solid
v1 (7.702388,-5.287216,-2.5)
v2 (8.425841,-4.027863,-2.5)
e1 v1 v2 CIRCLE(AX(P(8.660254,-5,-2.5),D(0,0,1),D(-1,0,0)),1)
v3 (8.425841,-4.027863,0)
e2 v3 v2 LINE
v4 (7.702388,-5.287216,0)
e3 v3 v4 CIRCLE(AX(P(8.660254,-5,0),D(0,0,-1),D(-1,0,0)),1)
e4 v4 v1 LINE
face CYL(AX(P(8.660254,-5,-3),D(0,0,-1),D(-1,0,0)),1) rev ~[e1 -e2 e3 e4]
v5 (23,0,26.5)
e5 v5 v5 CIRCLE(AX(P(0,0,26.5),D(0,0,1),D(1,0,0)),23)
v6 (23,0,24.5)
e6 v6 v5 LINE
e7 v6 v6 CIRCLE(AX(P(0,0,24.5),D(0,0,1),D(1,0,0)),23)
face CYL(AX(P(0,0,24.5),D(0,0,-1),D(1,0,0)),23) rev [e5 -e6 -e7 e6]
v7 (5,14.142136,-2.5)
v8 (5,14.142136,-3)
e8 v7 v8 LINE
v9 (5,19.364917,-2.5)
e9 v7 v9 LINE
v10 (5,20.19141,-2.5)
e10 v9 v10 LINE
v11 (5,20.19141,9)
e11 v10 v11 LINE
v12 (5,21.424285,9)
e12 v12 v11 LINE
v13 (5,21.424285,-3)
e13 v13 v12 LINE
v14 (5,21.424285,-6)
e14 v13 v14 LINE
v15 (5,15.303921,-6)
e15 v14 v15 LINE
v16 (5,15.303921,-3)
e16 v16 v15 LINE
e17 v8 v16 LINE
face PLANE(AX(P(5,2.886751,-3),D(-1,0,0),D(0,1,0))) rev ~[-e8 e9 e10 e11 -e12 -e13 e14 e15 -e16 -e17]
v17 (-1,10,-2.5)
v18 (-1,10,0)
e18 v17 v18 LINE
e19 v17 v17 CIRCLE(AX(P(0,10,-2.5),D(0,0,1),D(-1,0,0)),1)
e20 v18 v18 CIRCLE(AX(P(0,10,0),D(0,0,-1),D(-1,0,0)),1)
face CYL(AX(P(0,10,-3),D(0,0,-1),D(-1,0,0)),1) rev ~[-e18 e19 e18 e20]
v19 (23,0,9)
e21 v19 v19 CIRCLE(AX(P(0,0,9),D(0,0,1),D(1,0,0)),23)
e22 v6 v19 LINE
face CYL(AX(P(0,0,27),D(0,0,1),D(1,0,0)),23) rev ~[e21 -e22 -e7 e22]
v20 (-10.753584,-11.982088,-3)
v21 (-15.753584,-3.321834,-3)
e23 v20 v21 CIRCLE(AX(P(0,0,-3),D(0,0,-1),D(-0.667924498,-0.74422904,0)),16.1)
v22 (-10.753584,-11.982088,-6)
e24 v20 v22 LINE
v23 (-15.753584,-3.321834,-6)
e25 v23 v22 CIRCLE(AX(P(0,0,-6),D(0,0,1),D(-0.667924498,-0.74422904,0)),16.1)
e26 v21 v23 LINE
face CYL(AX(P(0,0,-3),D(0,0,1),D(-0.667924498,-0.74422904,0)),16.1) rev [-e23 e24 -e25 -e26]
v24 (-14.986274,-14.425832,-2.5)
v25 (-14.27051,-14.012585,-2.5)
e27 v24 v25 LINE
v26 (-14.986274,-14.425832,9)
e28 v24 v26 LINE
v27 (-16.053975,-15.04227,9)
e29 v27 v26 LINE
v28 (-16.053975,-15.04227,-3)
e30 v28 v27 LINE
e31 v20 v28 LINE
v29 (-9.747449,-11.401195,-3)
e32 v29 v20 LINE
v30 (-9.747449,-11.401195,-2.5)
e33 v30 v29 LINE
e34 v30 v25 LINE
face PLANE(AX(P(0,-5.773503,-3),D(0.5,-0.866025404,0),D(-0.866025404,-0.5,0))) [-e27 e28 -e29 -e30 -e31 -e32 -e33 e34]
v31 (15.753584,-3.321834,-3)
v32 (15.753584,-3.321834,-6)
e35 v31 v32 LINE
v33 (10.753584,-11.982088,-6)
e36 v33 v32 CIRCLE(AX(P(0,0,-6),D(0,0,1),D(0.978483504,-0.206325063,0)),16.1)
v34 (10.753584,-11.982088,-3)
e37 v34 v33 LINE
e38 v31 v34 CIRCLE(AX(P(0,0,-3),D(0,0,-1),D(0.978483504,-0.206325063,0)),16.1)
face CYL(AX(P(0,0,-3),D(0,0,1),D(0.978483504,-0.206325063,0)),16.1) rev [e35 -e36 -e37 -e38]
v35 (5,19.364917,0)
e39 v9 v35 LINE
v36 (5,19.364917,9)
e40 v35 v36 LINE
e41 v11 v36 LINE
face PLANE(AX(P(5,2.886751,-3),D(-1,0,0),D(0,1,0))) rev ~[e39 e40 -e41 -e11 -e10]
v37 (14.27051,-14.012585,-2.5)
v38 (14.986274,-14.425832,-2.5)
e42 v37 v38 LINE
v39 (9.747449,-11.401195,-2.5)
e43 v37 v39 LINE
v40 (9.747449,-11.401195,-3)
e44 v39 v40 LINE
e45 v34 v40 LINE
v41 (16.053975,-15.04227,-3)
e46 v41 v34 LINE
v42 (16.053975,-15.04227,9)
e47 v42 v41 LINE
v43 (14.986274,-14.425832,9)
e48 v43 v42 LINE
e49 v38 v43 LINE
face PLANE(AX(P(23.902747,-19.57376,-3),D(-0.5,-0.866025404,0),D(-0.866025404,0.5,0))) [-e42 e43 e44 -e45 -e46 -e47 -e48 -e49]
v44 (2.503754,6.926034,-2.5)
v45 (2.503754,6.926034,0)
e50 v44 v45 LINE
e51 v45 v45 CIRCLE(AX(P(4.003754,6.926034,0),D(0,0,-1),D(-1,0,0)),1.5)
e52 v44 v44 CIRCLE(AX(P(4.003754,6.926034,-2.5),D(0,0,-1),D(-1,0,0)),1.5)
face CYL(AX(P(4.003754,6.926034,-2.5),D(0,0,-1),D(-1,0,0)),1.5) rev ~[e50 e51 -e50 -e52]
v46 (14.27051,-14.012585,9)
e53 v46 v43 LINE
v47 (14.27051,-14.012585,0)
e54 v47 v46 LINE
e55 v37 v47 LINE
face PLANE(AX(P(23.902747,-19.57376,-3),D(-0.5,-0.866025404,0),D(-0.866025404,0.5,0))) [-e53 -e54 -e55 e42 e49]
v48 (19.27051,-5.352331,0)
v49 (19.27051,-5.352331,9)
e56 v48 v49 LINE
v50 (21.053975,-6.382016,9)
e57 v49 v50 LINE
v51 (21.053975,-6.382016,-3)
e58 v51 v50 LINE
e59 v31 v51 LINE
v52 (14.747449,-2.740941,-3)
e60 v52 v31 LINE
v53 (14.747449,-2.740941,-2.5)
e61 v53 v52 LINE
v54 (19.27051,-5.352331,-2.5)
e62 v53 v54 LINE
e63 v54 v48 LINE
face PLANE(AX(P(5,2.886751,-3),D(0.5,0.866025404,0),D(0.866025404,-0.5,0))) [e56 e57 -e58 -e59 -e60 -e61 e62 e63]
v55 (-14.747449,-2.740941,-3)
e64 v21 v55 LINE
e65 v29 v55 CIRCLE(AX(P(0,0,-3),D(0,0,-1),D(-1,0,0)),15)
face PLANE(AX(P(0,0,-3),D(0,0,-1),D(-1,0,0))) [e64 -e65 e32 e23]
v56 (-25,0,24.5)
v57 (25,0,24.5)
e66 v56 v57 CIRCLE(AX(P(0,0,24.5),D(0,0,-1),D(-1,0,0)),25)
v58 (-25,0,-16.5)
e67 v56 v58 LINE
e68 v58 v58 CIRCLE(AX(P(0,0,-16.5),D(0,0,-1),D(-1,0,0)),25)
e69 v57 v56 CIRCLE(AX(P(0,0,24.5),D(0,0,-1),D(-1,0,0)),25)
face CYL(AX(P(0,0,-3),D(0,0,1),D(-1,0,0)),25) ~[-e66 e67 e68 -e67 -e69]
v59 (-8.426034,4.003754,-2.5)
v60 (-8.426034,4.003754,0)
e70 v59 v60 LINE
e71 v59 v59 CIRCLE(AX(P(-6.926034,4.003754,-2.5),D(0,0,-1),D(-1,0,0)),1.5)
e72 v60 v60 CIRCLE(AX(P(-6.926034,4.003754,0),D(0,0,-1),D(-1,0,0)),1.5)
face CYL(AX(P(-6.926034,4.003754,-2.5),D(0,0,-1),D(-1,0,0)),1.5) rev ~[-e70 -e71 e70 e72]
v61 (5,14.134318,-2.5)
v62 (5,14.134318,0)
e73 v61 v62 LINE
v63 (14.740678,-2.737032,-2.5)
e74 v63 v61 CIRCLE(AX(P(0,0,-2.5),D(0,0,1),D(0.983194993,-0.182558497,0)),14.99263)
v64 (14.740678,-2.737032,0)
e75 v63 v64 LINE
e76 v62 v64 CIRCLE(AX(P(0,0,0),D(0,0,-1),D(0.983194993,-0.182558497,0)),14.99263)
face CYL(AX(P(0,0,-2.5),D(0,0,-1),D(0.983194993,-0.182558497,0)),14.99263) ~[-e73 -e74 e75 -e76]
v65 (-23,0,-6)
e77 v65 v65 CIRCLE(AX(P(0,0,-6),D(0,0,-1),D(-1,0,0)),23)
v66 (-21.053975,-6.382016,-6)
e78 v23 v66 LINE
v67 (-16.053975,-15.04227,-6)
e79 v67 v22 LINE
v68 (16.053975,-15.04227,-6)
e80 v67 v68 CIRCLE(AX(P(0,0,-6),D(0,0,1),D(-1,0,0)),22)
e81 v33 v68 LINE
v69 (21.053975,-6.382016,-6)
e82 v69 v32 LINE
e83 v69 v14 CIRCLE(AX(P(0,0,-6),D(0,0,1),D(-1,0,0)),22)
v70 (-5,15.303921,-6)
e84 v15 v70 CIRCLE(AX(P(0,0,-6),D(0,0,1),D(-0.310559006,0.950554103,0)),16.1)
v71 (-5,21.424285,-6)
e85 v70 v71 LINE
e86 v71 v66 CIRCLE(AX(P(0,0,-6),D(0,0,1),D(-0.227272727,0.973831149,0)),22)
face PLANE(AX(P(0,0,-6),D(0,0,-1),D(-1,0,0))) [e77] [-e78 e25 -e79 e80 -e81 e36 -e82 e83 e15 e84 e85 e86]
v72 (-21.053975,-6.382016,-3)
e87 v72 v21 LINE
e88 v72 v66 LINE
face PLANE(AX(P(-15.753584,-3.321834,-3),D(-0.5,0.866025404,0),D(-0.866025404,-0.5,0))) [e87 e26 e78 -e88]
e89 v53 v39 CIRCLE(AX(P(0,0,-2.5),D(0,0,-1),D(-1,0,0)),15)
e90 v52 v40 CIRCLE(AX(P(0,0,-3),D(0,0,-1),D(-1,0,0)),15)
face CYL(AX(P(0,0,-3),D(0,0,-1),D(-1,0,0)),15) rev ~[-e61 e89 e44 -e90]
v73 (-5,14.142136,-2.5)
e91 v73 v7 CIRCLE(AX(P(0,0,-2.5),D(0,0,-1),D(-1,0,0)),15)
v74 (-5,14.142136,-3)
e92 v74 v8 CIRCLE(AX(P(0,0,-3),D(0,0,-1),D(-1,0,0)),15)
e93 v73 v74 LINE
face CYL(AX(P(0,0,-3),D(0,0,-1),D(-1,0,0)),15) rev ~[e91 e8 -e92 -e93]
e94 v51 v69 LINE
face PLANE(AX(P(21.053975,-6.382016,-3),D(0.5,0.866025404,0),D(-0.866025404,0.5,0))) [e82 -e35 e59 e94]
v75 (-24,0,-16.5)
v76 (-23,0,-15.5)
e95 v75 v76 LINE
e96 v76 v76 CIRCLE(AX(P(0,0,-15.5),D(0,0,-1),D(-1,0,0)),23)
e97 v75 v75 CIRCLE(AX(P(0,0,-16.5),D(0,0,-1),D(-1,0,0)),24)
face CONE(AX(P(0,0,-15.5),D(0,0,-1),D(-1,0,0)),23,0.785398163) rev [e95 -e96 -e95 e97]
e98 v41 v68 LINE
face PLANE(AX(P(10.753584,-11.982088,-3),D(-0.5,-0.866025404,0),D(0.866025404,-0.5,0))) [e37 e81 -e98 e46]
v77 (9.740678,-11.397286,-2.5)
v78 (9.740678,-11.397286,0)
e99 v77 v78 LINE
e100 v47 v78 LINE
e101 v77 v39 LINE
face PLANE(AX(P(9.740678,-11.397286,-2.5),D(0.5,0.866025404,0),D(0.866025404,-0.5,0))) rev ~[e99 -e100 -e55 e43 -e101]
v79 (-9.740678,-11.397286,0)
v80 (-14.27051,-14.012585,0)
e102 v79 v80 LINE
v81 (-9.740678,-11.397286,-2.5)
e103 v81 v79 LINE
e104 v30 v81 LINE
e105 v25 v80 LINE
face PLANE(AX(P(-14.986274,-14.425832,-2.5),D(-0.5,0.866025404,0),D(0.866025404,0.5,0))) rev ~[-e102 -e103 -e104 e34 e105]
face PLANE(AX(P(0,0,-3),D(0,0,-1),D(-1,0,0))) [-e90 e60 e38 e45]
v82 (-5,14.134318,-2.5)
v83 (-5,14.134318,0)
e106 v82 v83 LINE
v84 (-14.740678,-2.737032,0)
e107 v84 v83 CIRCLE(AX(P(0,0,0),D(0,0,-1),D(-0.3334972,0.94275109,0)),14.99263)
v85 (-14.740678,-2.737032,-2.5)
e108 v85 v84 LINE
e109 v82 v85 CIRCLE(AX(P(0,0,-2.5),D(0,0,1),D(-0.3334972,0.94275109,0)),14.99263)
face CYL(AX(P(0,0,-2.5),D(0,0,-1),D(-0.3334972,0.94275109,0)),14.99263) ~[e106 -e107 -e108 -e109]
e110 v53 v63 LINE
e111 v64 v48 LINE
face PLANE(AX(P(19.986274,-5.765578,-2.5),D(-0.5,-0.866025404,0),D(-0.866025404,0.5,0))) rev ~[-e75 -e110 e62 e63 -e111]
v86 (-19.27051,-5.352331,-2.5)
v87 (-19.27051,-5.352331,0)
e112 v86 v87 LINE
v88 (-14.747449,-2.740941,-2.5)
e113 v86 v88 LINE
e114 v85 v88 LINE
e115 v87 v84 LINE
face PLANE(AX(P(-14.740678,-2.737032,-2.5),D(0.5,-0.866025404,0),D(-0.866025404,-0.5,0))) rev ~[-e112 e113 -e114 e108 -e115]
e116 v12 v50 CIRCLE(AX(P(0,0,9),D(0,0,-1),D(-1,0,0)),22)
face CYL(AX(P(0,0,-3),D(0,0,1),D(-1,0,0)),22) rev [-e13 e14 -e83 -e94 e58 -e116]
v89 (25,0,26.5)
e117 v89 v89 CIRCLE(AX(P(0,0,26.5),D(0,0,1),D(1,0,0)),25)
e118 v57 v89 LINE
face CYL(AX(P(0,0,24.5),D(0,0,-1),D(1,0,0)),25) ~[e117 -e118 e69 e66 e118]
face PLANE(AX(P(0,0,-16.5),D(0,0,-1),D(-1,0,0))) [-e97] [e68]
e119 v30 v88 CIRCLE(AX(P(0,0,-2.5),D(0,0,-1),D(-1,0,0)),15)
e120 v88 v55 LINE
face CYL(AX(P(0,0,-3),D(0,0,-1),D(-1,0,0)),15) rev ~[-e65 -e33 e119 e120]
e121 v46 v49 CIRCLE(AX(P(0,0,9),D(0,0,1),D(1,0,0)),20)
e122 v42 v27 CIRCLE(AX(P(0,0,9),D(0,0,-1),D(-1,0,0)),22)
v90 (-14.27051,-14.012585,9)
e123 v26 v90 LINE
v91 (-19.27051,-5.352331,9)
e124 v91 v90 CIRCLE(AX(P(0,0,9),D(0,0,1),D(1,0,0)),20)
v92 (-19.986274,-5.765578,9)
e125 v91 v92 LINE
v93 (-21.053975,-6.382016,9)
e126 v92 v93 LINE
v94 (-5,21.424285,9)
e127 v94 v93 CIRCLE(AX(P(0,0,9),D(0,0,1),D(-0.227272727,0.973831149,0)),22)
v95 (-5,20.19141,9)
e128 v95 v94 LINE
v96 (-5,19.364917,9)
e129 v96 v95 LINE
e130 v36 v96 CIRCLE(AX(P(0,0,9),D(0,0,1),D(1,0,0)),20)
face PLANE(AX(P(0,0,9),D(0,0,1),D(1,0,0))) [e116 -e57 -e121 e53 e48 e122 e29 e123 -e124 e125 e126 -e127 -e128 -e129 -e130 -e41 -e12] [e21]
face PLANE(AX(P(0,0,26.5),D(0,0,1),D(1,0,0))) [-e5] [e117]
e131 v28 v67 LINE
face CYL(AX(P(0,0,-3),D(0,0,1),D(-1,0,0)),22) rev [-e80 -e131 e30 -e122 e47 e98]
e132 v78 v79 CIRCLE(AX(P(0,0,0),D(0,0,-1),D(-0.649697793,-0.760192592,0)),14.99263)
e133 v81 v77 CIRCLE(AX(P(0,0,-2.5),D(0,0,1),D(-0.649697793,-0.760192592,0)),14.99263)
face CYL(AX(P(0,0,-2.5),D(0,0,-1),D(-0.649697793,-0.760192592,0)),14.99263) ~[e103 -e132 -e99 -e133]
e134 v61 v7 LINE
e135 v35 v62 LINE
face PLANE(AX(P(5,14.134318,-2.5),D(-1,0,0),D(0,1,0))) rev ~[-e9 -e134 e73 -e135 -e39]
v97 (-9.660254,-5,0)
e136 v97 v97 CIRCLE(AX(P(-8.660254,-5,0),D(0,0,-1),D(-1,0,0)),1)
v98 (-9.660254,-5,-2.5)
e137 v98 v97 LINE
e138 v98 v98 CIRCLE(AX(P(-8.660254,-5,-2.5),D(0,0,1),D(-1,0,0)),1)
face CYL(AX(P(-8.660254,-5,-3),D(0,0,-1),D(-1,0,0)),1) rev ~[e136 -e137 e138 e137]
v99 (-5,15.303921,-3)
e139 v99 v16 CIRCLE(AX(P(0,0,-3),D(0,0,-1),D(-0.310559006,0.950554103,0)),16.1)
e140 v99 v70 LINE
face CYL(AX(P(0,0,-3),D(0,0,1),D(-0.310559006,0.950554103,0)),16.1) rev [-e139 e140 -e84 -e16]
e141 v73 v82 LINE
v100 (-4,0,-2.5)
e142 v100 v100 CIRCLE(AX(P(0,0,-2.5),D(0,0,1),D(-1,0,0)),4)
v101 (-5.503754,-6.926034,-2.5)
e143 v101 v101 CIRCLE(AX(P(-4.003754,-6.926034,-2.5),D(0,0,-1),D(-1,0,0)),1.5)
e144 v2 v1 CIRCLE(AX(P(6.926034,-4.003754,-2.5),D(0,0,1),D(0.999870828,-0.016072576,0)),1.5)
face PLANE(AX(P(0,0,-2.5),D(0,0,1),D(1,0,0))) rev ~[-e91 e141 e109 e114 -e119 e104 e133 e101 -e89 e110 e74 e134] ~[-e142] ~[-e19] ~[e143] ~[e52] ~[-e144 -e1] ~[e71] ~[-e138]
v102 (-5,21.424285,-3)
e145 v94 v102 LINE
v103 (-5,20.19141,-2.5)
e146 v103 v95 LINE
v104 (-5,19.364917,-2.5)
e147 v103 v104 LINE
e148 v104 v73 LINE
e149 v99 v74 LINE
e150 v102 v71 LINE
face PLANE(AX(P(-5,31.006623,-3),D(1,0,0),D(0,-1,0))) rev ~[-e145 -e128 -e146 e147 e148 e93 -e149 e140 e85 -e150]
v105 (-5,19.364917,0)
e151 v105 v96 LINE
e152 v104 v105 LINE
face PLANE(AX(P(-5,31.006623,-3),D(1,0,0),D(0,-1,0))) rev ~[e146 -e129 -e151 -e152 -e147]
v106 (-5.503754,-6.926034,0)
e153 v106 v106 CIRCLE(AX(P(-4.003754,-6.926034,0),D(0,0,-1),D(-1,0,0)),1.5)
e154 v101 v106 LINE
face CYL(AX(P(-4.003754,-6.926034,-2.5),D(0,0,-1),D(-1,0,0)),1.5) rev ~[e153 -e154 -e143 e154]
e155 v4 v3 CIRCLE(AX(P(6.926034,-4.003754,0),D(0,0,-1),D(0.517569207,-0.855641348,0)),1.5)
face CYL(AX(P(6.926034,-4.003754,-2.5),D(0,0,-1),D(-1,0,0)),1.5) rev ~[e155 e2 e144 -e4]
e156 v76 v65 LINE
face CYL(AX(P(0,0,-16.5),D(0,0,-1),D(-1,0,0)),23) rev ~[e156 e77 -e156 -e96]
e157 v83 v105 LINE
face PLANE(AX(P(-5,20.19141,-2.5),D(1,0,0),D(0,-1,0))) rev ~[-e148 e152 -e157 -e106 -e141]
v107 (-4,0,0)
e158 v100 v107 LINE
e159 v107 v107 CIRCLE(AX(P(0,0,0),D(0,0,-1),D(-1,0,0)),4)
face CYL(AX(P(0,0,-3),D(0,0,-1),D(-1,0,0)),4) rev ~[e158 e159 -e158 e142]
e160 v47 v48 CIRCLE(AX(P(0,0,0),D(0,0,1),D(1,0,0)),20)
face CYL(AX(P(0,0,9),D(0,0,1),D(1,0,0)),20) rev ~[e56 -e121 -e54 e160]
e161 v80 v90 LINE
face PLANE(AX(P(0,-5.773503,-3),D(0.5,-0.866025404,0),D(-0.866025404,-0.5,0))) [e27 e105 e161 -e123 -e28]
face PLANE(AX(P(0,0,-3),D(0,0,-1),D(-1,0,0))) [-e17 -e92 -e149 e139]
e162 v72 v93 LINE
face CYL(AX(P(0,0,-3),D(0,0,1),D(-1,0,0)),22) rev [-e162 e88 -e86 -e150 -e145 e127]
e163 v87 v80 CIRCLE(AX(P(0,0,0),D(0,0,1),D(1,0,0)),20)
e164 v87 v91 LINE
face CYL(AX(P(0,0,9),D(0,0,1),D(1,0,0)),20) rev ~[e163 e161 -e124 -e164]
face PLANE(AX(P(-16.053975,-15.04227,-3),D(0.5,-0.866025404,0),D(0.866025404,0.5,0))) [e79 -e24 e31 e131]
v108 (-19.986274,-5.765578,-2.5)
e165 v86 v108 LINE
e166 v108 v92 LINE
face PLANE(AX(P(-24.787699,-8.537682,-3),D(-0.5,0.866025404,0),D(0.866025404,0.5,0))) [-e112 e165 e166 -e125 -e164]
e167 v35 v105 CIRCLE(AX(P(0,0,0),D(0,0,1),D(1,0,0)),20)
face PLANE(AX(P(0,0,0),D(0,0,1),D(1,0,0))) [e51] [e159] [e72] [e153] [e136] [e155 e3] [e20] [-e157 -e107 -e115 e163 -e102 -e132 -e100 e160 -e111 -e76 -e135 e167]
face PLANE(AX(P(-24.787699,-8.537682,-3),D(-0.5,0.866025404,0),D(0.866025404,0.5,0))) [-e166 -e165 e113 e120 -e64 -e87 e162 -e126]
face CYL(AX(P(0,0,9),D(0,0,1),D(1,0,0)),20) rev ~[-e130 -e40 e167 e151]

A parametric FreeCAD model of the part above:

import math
import FreeCAD as App
import Part
import Sketcher

V = App.Vector
Q = App.Units.Quantity


def edges_at(feature, points):
    """Names of the edges that pass closest to the given points."""
    edges = feature.Shape.Edges
    near = lambda p: min(range(len(edges)), key=lambda i: edges[i].distToShape(Part.Vertex(*p))[0])
    return sorted({f"Edge{near(p) + 1}" for p in points})


def add_polygon(sketch, points):
    """Adds a closed chain of lines whose ends are joined by coincident constraints."""
    first, n = sketch.GeometryCount, len(points)
    for a, b in zip(points, points[1:] + points[:1]):
        sketch.addGeometry(Part.LineSegment(App.Vector(*a, 0), App.Vector(*b, 0)), False)
    for i in range(n):
        sketch.addConstraint(Sketcher.Constraint("Coincident", first + i, 2, first + (i + 1) % n, 1))

doc = App.newDocument("Part")
body = doc.addObject("PartDesign::Body", "Body")

sketch1 = body.newObject("Sketcher::SketchObject", "Sketch")
sketch1.AttachmentSupport = (doc.getObject("XY_Plane"), [""])
sketch1.MapMode = "FlatFace"
sketch1.addGeometry([
    Part.Circle(V(0, 0, 0), V(0, 0, 1), 22),
    Part.Circle(V(0, 0, 0), V(0, 0, 1), 17),
], False)
sketch1.addConstraint([
    Sketcher.Constraint("Coincident", 0, 3, -1, 1),
    Sketcher.Constraint("Coincident", 1, 3, -1, 1),
    Sketcher.Constraint("Diameter", 0, 44.0),
    Sketcher.Constraint("Diameter", 1, 34.0),
])
pad1 = body.newObject("PartDesign::Pad", "Pad")
pad1.Profile = sketch1
pad1.Length = 9

sketch2 = body.newObject("Sketcher::SketchObject", "Sketch001")
sketch2.AttachmentSupport = (doc.getObject("XY_Plane"), [""])
sketch2.MapMode = "FlatFace"
sketch2.addGeometry(Part.Circle(V(0, 0, 0), V(0, 0, 1), 22), False)
sketch2.addConstraint([
    Sketcher.Constraint("Coincident", 0, 3, -1, 1),
    Sketcher.Constraint("Diameter", 0, 44.0),
])
pad2 = body.newObject("PartDesign::Pad", "Pad001")
pad2.Profile = sketch2
pad2.Length = 3
pad2.Reversed = True

sketch3 = body.newObject("Sketcher::SketchObject", "Sketch002")
sketch3.AttachmentSupport = (doc.getObject("XY_Plane"), [""])
sketch3.MapMode = "FlatFace"
sketch3.AttachmentOffset = App.Placement(V(0, 0, -3), App.Rotation())
sketch3.addGeometry([
    Part.Circle(V(0, 10, 0), V(0, 0, 1), 1),
    Part.Circle(V(-8.7, -5, 0), V(0, 0, 1), 1),
    Part.Circle(V(8.7, -5, 0), V(0, 0, 1), 1),
], False)
sketch3.addConstraint([
    Sketcher.Constraint("Equal", 0, 1),
    Sketcher.Constraint("Equal", 1, 2),
    Sketcher.Constraint("Symmetric", 1, 3, 2, 3, -2),
    Sketcher.Constraint("PointOnObject", 0, 3, -2),
    Sketcher.Constraint("Diameter", 0, 2.0),
    Sketcher.Constraint("DistanceY", -1, 1, 0, 3, 10.0),
    Sketcher.Constraint("DistanceY", 1, 3, -1, 1, 5.0),
    Sketcher.Constraint("DistanceX", 1, 3, 2, 3, 17.320508),
])
pocket1 = body.newObject("PartDesign::Pocket", "Pocket")
pocket1.Profile = sketch3
pocket1.Length = 3
pocket1.Reversed = True

sketch4 = body.newObject("Sketcher::SketchObject", "Sketch003")
sketch4.AttachmentSupport = (doc.getObject("XY_Plane"), [""])
sketch4.MapMode = "FlatFace"
sketch4.AttachmentOffset = App.Placement(V(0, 0, -3), App.Rotation())
add_polygon(sketch4, [(-5, 3), (-25, -9), (-29, 20), (-5, 31)])
add_polygon(sketch4, [(0, -6), (6, -9), (24, -20), (4, -32), (-20, -17)])
add_polygon(sketch4, [(5, 3), (5, 31), (28, 27), (29, -11)])
sketch4.addConstraint([
    Sketcher.Constraint("Vertical", 3),
    Sketcher.Constraint("Vertical", 9),
    Sketcher.Constraint("Symmetric", 2, 2, 9, 2, -2),
    Sketcher.Constraint("PointOnObject", 8, 2, -2),
    Sketcher.Constraint("Parallel", 4, 5),
    Sketcher.Constraint("Parallel", 0, 8),
    Sketcher.Constraint("Parallel", 5, 12),
    Sketcher.Constraint("Horizontal", 3, 2, 12, 2),
    Sketcher.Constraint("Equal", 0, 8),
    Sketcher.Constraint("Angle", 0, Q("-150 deg")),
    Sketcher.Constraint("Angle", 4, Q("-30 deg")),
    Sketcher.Constraint("DistanceX", 2, 2, -1, 1, 5.0),
    Sketcher.Constraint("DistanceX", 5, 2, 11, 2, 5.0),
    Sketcher.Constraint("DistanceY", 3, 2, 3, 1, 28.119871),
    Sketcher.Constraint("DistanceX", 0, 2, -1, 1, 24.787699),
    Sketcher.Constraint("DistanceY", 6, 2, 0, 2, 23.8984),
    Sketcher.Constraint("Distance", 1, 28.338539),
    Sketcher.Constraint("Distance", 2, 26.23322),
    Sketcher.Constraint("Distance", 4, 7.113249),
    Sketcher.Constraint("DistanceY", -1, 1, 1, 2, 19.543761),
    Sketcher.Constraint("DistanceY", 5, 2, -1, 1, 19.57376),
    Sketcher.Constraint("DistanceX", -1, 1, 6, 2, 4.03508),
    Sketcher.Constraint("DistanceY", 4, 2, 3, 2, 12.216878),
    Sketcher.Constraint("DistanceX", 4, 2, 10, 2, 21.477831),
    Sketcher.Constraint("DistanceY", 8, 2, 10, 2, 32.944128),
])
pocket2 = body.newObject("PartDesign::Pocket", "Pocket001")
pocket2.Profile = sketch4
pocket2.Length = 25
pocket2.Reversed = True

sketch5 = body.newObject("Sketcher::SketchObject", "Sketch004")
sketch5.AttachmentSupport = (doc.getObject("XY_Plane"), [""])
sketch5.MapMode = "FlatFace"
sketch5.AttachmentOffset = App.Placement(V(0, 0, -3), App.Rotation())
sketch5.addGeometry(Part.Circle(V(0, 0, 0), V(0, 0, 1), 4), False)
sketch5.addConstraint([
    Sketcher.Constraint("Coincident", 0, 3, -1, 1),
    Sketcher.Constraint("Diameter", 0, 8.0),
])
pocket3 = body.newObject("PartDesign::Pocket", "Pocket002")
pocket3.Profile = sketch5
pocket3.Length = 10
pocket3.Reversed = True
doc.recompute()

fillet = body.newObject("PartDesign::Fillet", "Fillet")
fillet.Base = (pocket3, edges_at(pocket3, [(-5, 2.887, -1.5)]))
fillet.Radius = 10
doc.recompute()

fillet2 = body.newObject("PartDesign::Fillet", "Fillet001")
fillet2.Base = (fillet, edges_at(fillet, [(5, 2.887, -1.5), (0, -5.774, -1.5)]))
fillet2.Radius = 10

sketch6 = body.newObject("Sketcher::SketchObject", "Sketch005")
sketch6.AttachmentSupport = (doc.getObject("XY_Plane"), [""])
sketch6.MapMode = "FlatFace"
sketch6.AttachmentOffset = App.Placement(V(0, 0, -3), App.Rotation())
sketch6.addGeometry([
    Part.Circle(V(0, 0, 0), V(0, 0, 1), 25),
    Part.Circle(V(0, 0, 0), V(0, 0, 1), 22),
], False)
sketch6.addConstraint([
    Sketcher.Constraint("Coincident", 0, 3, -1, 1),
    Sketcher.Constraint("Coincident", 1, 3, -1, 1),
    Sketcher.Constraint("Diameter", 0, 50.0),
    Sketcher.Constraint("Diameter", 1, 44.0),
])
pad3 = body.newObject("PartDesign::Pad", "Pad002")
pad3.Profile = sketch6
pad3.Length = 30

sketch7 = body.newObject("Sketcher::SketchObject", "Sketch006")
sketch7.AttachmentSupport = (doc.getObject("XY_Plane"), [""])
sketch7.MapMode = "FlatFace"
sketch7.AttachmentOffset = App.Placement(V(0, 0, -3), App.Rotation())
sketch7.addGeometry([
    Part.LineSegment(V(16, -3, 0), V(21, -6, 0)),
    Part.ArcOfCircle(Part.Circle(V(0, 0, 0), V(0, 0, 1), 22), math.radians(-43), math.radians(-17)),
    Part.LineSegment(V(16, -15, 0), V(11, -12, 0)),
    Part.ArcOfCircle(Part.Circle(V(0, 0, 0), V(0, 0, 1), 16), math.radians(-48), math.radians(-12)),
    Part.LineSegment(V(-11, -12, 0), V(-16, -15, 0)),
    Part.ArcOfCircle(Part.Circle(V(0, 0, 0), V(0, 0, 1), 22), math.radians(-163), math.radians(-137)),
    Part.LineSegment(V(-21, -6, 0), V(-16, -3, 0)),
    Part.ArcOfCircle(Part.Circle(V(0, 0, 0), V(0, 0, 1), 16), math.radians(-168), math.radians(-132)),
    Part.LineSegment(V(-5, 15, 0), V(-5, 21, 0)),
    Part.ArcOfCircle(Part.Circle(V(0, 0, 0), V(0, 0, 1), 22), math.radians(77), math.radians(103)),
    Part.LineSegment(V(5, 21, 0), V(5, 15, 0)),
    Part.ArcOfCircle(Part.Circle(V(0, 0, 0), V(0, 0, 1), 16), math.radians(72), math.radians(108)),
], False)
sketch7.addConstraint([
    Sketcher.Constraint("Coincident", 0, 2, 1, 2),
    Sketcher.Constraint("Coincident", 1, 1, 2, 1),
    Sketcher.Constraint("Coincident", 2, 2, 3, 1),
    Sketcher.Constraint("Coincident", 3, 2, 0, 1),
    Sketcher.Constraint("Coincident", 4, 2, 5, 2),
    Sketcher.Constraint("Coincident", 5, 1, 6, 1),
    Sketcher.Constraint("Coincident", 6, 2, 7, 1),
    Sketcher.Constraint("Coincident", 7, 2, 4, 1),
    Sketcher.Constraint("Coincident", 8, 2, 9, 2),
    Sketcher.Constraint("Coincident", 9, 1, 10, 1),
    Sketcher.Constraint("Coincident", 10, 2, 11, 1),
    Sketcher.Constraint("Coincident", 11, 2, 8, 1),
    Sketcher.Constraint("Vertical", 8),
    Sketcher.Constraint("Vertical", 10),
    Sketcher.Constraint("Coincident", 1, 3, -1, 1),
    Sketcher.Constraint("Coincident", 3, 3, -1, 1),
    Sketcher.Constraint("Coincident", 5, 3, -1, 1),
    Sketcher.Constraint("Coincident", 7, 3, -1, 1),
    Sketcher.Constraint("Coincident", 9, 3, -1, 1),
    Sketcher.Constraint("Coincident", 11, 3, -1, 1),
    Sketcher.Constraint("Equal", 1, 5),
    Sketcher.Constraint("Equal", 3, 7),
    Sketcher.Constraint("Equal", 5, 9),
    Sketcher.Constraint("Equal", 7, 11),
    Sketcher.Constraint("Parallel", 0, 2),
    Sketcher.Constraint("Parallel", 4, 6),
    Sketcher.Constraint("Horizontal", 1, 1, 4, 2),
    Sketcher.Constraint("Horizontal", 0, 2, 5, 1),
    Sketcher.Constraint("Horizontal", 3, 2, 6, 2),
    Sketcher.Constraint("Horizontal", 8, 2, 9, 1),
    Sketcher.Constraint("Equal", 0, 2),
    Sketcher.Constraint("Radius", 1, 22.0),
    Sketcher.Constraint("Radius", 3, 16.1),
    Sketcher.Constraint("Angle", 0, Q("-30 deg")),
    Sketcher.Constraint("DistanceX", 8, 2, -1, 1, 5.0),
    Sketcher.Constraint("DistanceX", 1, 1, 0, 2, 5.0),
])
pad4 = body.newObject("PartDesign::Pad", "Pad003")
pad4.Profile = sketch7
pad4.Length = 4
pad4.Reversed = True

sketch8 = body.newObject("Sketcher::SketchObject", "Sketch007")
sketch8.AttachmentSupport = (doc.getObject("XY_Plane"), [""])
sketch8.MapMode = "FlatFace"
sketch8.AttachmentOffset = App.Placement(V(0, 0, -7), App.Rotation())
sketch8.addGeometry(Part.Circle(V(0, 0, 0), V(0, 0, 1), 39), False)
sketch8.addConstraint([
    Sketcher.Constraint("Coincident", 0, 3, -1, 1),
    Sketcher.Constraint("Diameter", 0, 77.344905),
])
pocket4 = body.newObject("PartDesign::Pocket", "Pocket003")
pocket4.Profile = sketch8
pocket4.Length = 1
pocket4.Reversed = True

sketch9 = body.newObject("Sketcher::SketchObject", "Sketch008")
sketch9.AttachmentSupport = (doc.getObject("XY_Plane"), [""])
sketch9.MapMode = "FlatFace"
sketch9.AttachmentOffset = App.Placement(V(0, 0, -3), App.Rotation())
sketch9.addGeometry([
    Part.Circle(V(0, 0, 0), V(0, 0, 1), 25),
    Part.Circle(V(0, 0, 0), V(0, 0, 1), 22),
], False)
sketch9.addConstraint([
    Sketcher.Constraint("Coincident", 0, 3, -1, 1),
    Sketcher.Constraint("Coincident", 1, 3, -1, 1),
    Sketcher.Constraint("Diameter", 0, 50.0),
    Sketcher.Constraint("Diameter", 1, 44.0),
])
pad5 = body.newObject("PartDesign::Pad", "Pad004")
pad5.Profile = sketch9
pad5.Length = 13.5
pad5.Reversed = True

sketch10 = body.newObject("Sketcher::SketchObject", "Sketch009")
sketch10.AttachmentSupport = (doc.getObject("XY_Plane"), [""])
sketch10.MapMode = "FlatFace"
sketch10.AttachmentOffset = App.Placement(V(0, 0, -16.5), App.Rotation())
sketch10.addGeometry(Part.Circle(V(0, 0, 0), V(0, 0, 1), 23), False)
sketch10.addConstraint([
    Sketcher.Constraint("Coincident", 0, 3, -1, 1),
    Sketcher.Constraint("Diameter", 0, 46.0),
])
pocket5 = body.newObject("PartDesign::Pocket", "Pocket004")
pocket5.Profile = sketch10
pocket5.Length = 10.5
pocket5.Reversed = True
doc.recompute()

chamfer = body.newObject("PartDesign::Chamfer", "Chamfer")
chamfer.Base = (pocket5, edges_at(pocket5, [(23, 0, -16.5)]))
chamfer.Size = 1

sketch11 = body.newObject("Sketcher::SketchObject", "Sketch010")
sketch11.AttachmentSupport = (doc.getObject("XY_Plane"), [""])
sketch11.MapMode = "FlatFace"
sketch11.AttachmentOffset = App.Placement(V(0, 0, 27), App.Rotation())
sketch11.addGeometry(Part.Circle(V(0, 0, 0), V(0, 0, 1), 23), False)
sketch11.addConstraint([
    Sketcher.Constraint("Coincident", 0, 3, -1, 1),
    Sketcher.Constraint("Diameter", 0, 46.0),
])
pocket6 = body.newObject("PartDesign::Pocket", "Pocket005")
pocket6.Profile = sketch11
pocket6.Length = 18

sketch12 = body.newObject("Sketcher::SketchObject", "Sketch011")
sketch12.AttachmentSupport = (doc.getObject("XY_Plane"), [""])
sketch12.MapMode = "FlatFace"
sketch12.AttachmentOffset = App.Placement(V(0, 0, 27), App.Rotation())
sketch12.addGeometry(Part.Circle(V(0, 0, 0), V(0, 0, 1), 40), False)
sketch12.addConstraint([
    Sketcher.Constraint("Coincident", 0, 3, -1, 1),
    Sketcher.Constraint("Diameter", 0, 79.661759),
])
pocket7 = body.newObject("PartDesign::Pocket", "Pocket006")
pocket7.Profile = sketch12
pocket7.Length = 2.5

sketch13 = body.newObject("Sketcher::SketchObject", "Sketch012")
sketch13.AttachmentSupport = (doc.getObject("XY_Plane"), [""])
sketch13.MapMode = "FlatFace"
sketch13.AttachmentOffset = App.Placement(V(0, 0, -3), App.Rotation())
sketch13.addGeometry(Part.Circle(V(0, 0, 0), V(0, 0, 1), 15), False)
sketch13.addConstraint([
    Sketcher.Constraint("Coincident", 0, 3, -1, 1),
    Sketcher.Constraint("Diameter", 0, 30.0),
])
pocket8 = body.newObject("PartDesign::Pocket", "Pocket007")
pocket8.Profile = sketch13
pocket8.Length = 0.5
pocket8.Reversed = True

sketch14 = body.newObject("Sketcher::SketchObject", "Sketch013")
sketch14.AttachmentSupport = (doc.getObject("XY_Plane"), [""])
sketch14.MapMode = "FlatFace"
sketch14.AttachmentOffset = App.Placement(V(0, 0, 24.5), App.Rotation())
sketch14.addGeometry([
    Part.Circle(V(0, 0, 0), V(0, 0, 1), 25),
    Part.Circle(V(0, 0, 0), V(0, 0, 1), 23),
], False)
sketch14.addConstraint([
    Sketcher.Constraint("Coincident", 0, 3, -1, 1),
    Sketcher.Constraint("Coincident", 1, 3, -1, 1),
    Sketcher.Constraint("Diameter", 0, 50.0),
    Sketcher.Constraint("Diameter", 1, 46.0),
])
pad6 = body.newObject("PartDesign::Pad", "Pad005")
pad6.Profile = sketch14
pad6.Length = 2

sketch15 = body.newObject("Sketcher::SketchObject", "Sketch014")
sketch15.AttachmentSupport = (doc.getObject("XY_Plane"), [""])
sketch15.MapMode = "FlatFace"
sketch15.AttachmentOffset = App.Placement(V(0, 0, 9), App.Rotation())
sketch15.addGeometry(Part.Circle(V(0, 0, 0), V(0, 0, 1), 20), False)
sketch15.addConstraint([
    Sketcher.Constraint("Coincident", 0, 3, -1, 1),
    Sketcher.Constraint("Diameter", 0, 40.0),
])
pocket9 = body.newObject("PartDesign::Pocket", "Pocket008")
pocket9.Profile = sketch15
pocket9.Length = 9

sketch16 = body.newObject("Sketcher::SketchObject", "Sketch015")
sketch16.AttachmentSupport = (doc.getObject("XY_Plane"), [""])
sketch16.MapMode = "FlatFace"
sketch16.addGeometry([
    Part.Circle(V(0, 0, 0), V(0, 0, 1), 20),
    Part.Circle(V(-8.7, -5, 0), V(0, 0, 1), 1),
    Part.Circle(V(0, 0, 0), V(0, 0, 1), 4),
    Part.Circle(V(8.7, -5, 0), V(0, 0, 1), 1),
    Part.Circle(V(0, 10, 0), V(0, 0, 1), 1),
], False)
sketch16.addConstraint([
    Sketcher.Constraint("Coincident", 0, 3, -1, 1),
    Sketcher.Constraint("Coincident", 2, 3, -1, 1),
    Sketcher.Constraint("Equal", 1, 3),
    Sketcher.Constraint("Equal", 3, 4),
    Sketcher.Constraint("Symmetric", 1, 3, 3, 3, -2),
    Sketcher.Constraint("PointOnObject", 4, 3, -2),
    Sketcher.Constraint("Diameter", 0, 40.0),
    Sketcher.Constraint("Diameter", 1, 2.0),
    Sketcher.Constraint("Diameter", 2, 8.0),
    Sketcher.Constraint("DistanceY", 1, 3, -1, 1, 5.0),
    Sketcher.Constraint("DistanceY", -1, 1, 4, 3, 10.0),
    Sketcher.Constraint("DistanceX", 1, 3, 3, 3, 17.320508),
])
pad7 = body.newObject("PartDesign::Pad", "Pad006")
pad7.Profile = sketch16
pad7.Length = 2.5
pad7.Reversed = True

sketch17 = body.newObject("Sketcher::SketchObject", "Sketch016")
sketch17.AttachmentSupport = (doc.getObject("XY_Plane"), [""])
sketch17.MapMode = "FlatFace"
sketch17.AttachmentOffset = App.Placement(V(0, 0, -2.5), App.Rotation())
sketch17.addGeometry([
    Part.Circle(V(6.9, -4, 0), V(0, 0, 1), 1.5),
    Part.Circle(V(4, 6.9, 0), V(0, 0, 1), 1.5),
    Part.Circle(V(-6.9, 4, 0), V(0, 0, 1), 1.5),
    Part.Circle(V(-4, -6.9, 0), V(0, 0, 1), 1.5),
], False)
sketch17.addConstraint([
    Sketcher.Constraint("Equal", 0, 1),
    Sketcher.Constraint("Equal", 1, 2),
    Sketcher.Constraint("Equal", 2, 3),
    Sketcher.Constraint("Symmetric", 0, 3, 2, 3, -1, 1),
    Sketcher.Constraint("Symmetric", 1, 3, 3, 3, -1, 1),
    Sketcher.Constraint("Diameter", 0, 3.0),
    Sketcher.Constraint("DistanceX", 1, 3, 0, 3, 2.92228),
    Sketcher.Constraint("DistanceY", 0, 3, 1, 3, 10.929789),
    Sketcher.Constraint("DistanceX", 2, 3, 1, 3, 10.929789),
    Sketcher.Constraint("DistanceY", 2, 3, 1, 3, 2.92228),
])
pocket10 = body.newObject("PartDesign::Pocket", "Pocket009")
pocket10.Profile = sketch17
pocket10.Length = 21.5
pocket10.Reversed = True

sketch18 = body.newObject("Sketcher::SketchObject", "Sketch017")
sketch18.AttachmentSupport = (doc.getObject("XY_Plane"), [""])
sketch18.MapMode = "FlatFace"
sketch18.AttachmentOffset = App.Placement(V(0, 0, -2.5), App.Rotation())
sketch18.addGeometry([
    Part.LineSegment(V(20, -6, 0), V(15, -3, 0)),
    Part.ArcOfCircle(Part.Circle(V(0, 0, 0), V(0, 0, 1), 15), math.radians(-11), math.radians(71)),
    Part.LineSegment(V(5, 14, 0), V(5, 20, 0)),
    Part.ArcOfCircle(Part.Circle(V(0, 0, 0), V(0, 0, 1), 21), math.radians(-16), math.radians(76)),
    Part.LineSegment(V(-5, 20, 0), V(-5, 14, 0)),
    Part.ArcOfCircle(Part.Circle(V(0, 0, 0), V(0, 0, 1), 15), math.radians(109), math.radians(191)),
    Part.LineSegment(V(-15, -3, 0), V(-20, -6, 0)),
    Part.ArcOfCircle(Part.Circle(V(0, 0, 0), V(0, 0, 1), 21), math.radians(104), math.radians(196)),
    Part.LineSegment(V(-15, -14, 0), V(-10, -11, 0)),
    Part.ArcOfCircle(Part.Circle(V(0, 0, 0), V(0, 0, 1), 15), math.radians(-131), math.radians(-49)),
    Part.LineSegment(V(10, -11, 0), V(15, -14, 0)),
    Part.ArcOfCircle(Part.Circle(V(0, 0, 0), V(0, 0, 1), 21), math.radians(-136), math.radians(-44)),
], False)
sketch18.addConstraint([
    Sketcher.Constraint("Coincident", 0, 2, 1, 1),
    Sketcher.Constraint("Coincident", 1, 2, 2, 1),
    Sketcher.Constraint("Coincident", 2, 2, 3, 2),
    Sketcher.Constraint("Coincident", 3, 1, 0, 1),
    Sketcher.Constraint("Coincident", 4, 2, 5, 1),
    Sketcher.Constraint("Coincident", 5, 2, 6, 1),
    Sketcher.Constraint("Coincident", 6, 2, 7, 2),
    Sketcher.Constraint("Coincident", 7, 1, 4, 1),
    Sketcher.Constraint("Coincident", 8, 2, 9, 1),
    Sketcher.Constraint("Coincident", 9, 2, 10, 1),
    Sketcher.Constraint("Coincident", 10, 2, 11, 2),
    Sketcher.Constraint("Coincident", 11, 1, 8, 1),
    Sketcher.Constraint("Vertical", 2),
    Sketcher.Constraint("Vertical", 4),
    Sketcher.Constraint("Coincident", 1, 3, -1, 1),
    Sketcher.Constraint("Coincident", 3, 3, -1, 1),
    Sketcher.Constraint("Coincident", 5, 3, -1, 1),
    Sketcher.Constraint("Coincident", 7, 3, -1, 1),
    Sketcher.Constraint("Coincident", 9, 3, -1, 1),
    Sketcher.Constraint("Coincident", 11, 3, -1, 1),
    Sketcher.Constraint("Equal", 1, 5),
    Sketcher.Constraint("Equal", 3, 7),
    Sketcher.Constraint("Equal", 5, 9),
    Sketcher.Constraint("Equal", 7, 11),
    Sketcher.Constraint("Parallel", 6, 8),
    Sketcher.Constraint("Parallel", 0, 10),
    Sketcher.Constraint("Horizontal", 1, 2, 4, 2),
    Sketcher.Constraint("Horizontal", 0, 2, 5, 2),
    Sketcher.Constraint("Horizontal", 3, 1, 6, 2),
    Sketcher.Constraint("Horizontal", 8, 2, 9, 2),
    Sketcher.Constraint("Equal", 6, 8),
    Sketcher.Constraint("Angle", 0, Q("150 deg")),
    Sketcher.Constraint("DistanceX", -1, 1, 1, 2, 5.0),
    Sketcher.Constraint("DistanceX", 5, 2, 8, 2, 5.0),
    Sketcher.Constraint("Radius", 1, 14.99263),
    Sketcher.Constraint("Radius", 3, 20.801275),
])
pocket11 = body.newObject("PartDesign::Pocket", "Pocket010")
pocket11.Profile = sketch18
pocket11.Length = 21.5
pocket11.Reversed = True

doc.recompute()
